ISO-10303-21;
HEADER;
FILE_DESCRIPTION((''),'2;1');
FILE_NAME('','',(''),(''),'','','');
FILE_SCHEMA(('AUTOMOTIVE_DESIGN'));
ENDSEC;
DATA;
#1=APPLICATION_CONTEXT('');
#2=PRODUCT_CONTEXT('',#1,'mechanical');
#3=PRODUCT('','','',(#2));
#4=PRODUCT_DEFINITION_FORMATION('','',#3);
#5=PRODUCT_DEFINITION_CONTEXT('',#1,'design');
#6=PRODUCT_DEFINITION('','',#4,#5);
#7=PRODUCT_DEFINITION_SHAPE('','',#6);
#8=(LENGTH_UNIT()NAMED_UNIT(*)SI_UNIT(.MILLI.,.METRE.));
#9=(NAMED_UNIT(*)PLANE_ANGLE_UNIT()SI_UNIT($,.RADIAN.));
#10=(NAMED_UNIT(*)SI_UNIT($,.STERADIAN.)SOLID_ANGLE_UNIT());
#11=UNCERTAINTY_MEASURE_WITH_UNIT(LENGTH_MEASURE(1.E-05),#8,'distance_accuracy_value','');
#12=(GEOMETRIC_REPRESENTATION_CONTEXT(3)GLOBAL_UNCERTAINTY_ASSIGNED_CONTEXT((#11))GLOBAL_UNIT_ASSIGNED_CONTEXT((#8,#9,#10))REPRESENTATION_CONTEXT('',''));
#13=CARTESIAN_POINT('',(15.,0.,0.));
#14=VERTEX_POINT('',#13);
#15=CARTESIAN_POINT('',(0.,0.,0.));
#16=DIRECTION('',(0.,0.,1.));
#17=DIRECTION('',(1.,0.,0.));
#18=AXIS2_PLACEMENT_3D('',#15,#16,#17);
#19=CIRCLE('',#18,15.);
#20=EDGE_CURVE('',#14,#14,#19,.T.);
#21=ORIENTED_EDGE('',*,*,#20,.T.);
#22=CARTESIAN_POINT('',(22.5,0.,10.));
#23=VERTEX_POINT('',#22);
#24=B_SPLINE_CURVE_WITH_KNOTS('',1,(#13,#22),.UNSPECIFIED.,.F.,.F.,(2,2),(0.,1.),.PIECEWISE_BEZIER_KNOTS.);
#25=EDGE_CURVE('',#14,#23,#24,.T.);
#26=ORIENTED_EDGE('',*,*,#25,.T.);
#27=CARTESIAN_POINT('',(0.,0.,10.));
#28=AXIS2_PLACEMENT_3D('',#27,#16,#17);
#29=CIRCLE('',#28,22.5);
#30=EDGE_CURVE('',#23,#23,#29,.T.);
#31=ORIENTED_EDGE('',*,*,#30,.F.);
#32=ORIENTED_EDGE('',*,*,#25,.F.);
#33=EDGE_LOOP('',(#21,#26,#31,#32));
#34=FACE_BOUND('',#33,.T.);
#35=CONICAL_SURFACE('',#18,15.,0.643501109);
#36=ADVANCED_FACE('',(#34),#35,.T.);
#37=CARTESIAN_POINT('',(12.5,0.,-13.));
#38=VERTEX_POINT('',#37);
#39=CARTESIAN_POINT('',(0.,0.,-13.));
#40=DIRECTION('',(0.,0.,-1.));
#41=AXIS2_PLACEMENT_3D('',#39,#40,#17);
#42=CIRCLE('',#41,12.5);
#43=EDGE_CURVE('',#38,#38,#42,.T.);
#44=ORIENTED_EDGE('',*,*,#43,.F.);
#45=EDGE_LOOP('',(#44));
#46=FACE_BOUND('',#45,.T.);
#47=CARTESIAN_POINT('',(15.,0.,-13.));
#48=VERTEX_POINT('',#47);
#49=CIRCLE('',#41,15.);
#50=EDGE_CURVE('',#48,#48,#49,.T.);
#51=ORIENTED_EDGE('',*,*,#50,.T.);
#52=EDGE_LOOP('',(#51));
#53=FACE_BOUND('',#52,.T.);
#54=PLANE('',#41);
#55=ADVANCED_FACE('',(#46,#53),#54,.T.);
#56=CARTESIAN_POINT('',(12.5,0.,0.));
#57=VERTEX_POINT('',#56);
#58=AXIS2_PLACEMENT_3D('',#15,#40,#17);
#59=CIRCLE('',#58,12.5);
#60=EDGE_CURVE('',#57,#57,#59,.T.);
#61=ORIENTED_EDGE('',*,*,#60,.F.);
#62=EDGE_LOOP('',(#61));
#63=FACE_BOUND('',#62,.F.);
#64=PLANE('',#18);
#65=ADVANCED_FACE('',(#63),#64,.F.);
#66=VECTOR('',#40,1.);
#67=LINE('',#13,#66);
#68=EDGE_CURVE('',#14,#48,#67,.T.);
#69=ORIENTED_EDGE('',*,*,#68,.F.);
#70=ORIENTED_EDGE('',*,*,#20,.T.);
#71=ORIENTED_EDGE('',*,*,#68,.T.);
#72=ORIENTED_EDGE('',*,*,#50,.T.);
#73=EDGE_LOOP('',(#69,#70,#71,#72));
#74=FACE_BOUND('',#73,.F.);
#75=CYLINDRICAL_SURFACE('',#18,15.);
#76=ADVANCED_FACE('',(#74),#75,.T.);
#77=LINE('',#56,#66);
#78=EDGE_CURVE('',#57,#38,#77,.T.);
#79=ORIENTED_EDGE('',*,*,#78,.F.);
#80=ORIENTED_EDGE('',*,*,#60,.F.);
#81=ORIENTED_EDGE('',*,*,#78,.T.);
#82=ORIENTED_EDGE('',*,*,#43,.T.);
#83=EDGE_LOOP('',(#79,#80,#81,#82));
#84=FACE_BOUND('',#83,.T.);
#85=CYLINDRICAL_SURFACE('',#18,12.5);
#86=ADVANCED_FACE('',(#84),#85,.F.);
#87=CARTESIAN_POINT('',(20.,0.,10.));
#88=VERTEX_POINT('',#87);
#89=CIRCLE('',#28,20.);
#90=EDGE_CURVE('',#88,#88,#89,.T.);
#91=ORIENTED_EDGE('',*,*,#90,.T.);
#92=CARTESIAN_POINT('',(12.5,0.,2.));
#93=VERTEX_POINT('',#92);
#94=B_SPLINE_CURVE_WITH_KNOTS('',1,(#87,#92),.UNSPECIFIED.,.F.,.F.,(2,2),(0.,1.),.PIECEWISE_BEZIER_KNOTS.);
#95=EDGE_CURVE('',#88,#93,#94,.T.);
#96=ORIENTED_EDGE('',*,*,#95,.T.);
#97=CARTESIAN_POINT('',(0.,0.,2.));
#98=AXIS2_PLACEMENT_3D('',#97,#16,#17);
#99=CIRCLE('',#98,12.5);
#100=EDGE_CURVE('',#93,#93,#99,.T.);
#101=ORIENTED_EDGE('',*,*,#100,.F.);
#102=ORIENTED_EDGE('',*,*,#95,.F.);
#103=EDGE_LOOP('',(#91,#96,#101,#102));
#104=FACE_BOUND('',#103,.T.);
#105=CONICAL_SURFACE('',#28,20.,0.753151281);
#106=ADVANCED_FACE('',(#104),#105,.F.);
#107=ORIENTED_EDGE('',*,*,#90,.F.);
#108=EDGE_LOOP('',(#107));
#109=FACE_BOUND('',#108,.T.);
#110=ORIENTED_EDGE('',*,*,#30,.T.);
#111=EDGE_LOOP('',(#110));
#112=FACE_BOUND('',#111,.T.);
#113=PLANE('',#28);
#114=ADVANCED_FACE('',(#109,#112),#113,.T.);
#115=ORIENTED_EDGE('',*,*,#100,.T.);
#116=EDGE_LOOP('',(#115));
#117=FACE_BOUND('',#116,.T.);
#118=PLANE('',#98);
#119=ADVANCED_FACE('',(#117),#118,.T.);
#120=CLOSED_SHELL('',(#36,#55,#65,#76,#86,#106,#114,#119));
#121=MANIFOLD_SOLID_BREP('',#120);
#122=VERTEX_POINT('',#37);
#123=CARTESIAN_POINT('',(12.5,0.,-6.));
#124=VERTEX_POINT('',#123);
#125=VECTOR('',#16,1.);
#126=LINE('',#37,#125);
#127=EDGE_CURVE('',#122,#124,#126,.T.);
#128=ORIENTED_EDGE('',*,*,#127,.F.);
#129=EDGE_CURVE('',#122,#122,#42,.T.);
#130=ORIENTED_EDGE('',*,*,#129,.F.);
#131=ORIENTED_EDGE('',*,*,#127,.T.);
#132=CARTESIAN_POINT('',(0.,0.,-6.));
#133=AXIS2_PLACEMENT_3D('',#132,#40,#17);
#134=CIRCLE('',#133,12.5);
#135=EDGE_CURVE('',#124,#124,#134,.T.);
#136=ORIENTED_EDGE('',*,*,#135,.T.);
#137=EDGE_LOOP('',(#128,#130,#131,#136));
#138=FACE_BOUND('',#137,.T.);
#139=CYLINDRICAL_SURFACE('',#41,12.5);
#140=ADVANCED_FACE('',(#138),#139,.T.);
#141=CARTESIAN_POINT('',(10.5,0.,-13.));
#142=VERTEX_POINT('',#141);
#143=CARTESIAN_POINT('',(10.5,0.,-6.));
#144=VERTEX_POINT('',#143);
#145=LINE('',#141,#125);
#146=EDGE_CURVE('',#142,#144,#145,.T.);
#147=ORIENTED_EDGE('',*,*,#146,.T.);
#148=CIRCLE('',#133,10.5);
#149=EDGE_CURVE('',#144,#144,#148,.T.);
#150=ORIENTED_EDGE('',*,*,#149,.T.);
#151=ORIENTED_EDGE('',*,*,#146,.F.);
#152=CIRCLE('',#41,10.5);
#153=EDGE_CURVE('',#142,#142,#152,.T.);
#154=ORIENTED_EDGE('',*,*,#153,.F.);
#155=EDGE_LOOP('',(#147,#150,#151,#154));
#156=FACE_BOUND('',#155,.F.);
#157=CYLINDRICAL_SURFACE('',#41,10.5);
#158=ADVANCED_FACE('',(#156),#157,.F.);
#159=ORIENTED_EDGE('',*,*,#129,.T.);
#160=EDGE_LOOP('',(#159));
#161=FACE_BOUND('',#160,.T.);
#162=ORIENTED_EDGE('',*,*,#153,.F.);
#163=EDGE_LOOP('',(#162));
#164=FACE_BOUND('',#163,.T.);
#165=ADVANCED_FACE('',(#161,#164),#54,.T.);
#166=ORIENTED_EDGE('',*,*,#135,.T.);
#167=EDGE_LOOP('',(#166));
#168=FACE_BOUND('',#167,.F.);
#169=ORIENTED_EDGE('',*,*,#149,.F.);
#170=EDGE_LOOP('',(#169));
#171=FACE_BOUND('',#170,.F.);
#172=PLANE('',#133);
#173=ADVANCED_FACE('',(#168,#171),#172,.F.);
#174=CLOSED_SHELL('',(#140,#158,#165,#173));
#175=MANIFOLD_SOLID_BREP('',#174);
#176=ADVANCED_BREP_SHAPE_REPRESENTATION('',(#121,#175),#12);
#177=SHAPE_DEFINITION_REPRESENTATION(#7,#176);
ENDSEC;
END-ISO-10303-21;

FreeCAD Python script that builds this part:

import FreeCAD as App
import Part
import Sketcher
from FreeCAD import Vector
Q = App.Units.Quantity

doc = App.newDocument("Part")
body = doc.addObject("PartDesign::Body", "Body")

# Sketch on XY plane
sketch1 = body.newObject("Sketcher::SketchObject", "Sketch")
sketch1.AttachmentSupport = (doc.getObject("XY_Plane"), [""])
sketch1.MapMode = "FlatFace"
sketch1.addGeometry(Part.Circle(Vector(0, 0, 0), Vector(0, 0, 1), 15), False)
sketch1.addConstraint([
    Sketcher.Constraint("Coincident", 0, 3, -1, 1),
    Sketcher.Constraint("Diameter", 0, Q("30 mm")),
])

# Sketch on XY plane
sketch2 = body.newObject("Sketcher::SketchObject", "Sketch001")
sketch2.AttachmentSupport = (doc.getObject("XY_Plane"), [""])
sketch2.MapMode = "FlatFace"
sketch2.AttachmentOffset = App.Placement(Vector(0, 0, 10), App.Rotation())
sketch2.addGeometry(Part.Circle(Vector(0, 0, 0), Vector(0, 0, 1), 22), False)
sketch2.addConstraint([
    Sketcher.Constraint("Coincident", 0, 3, -1, 1),
    Sketcher.Constraint("Diameter", 0, Q("45 mm")),
])

additiveloft = body.newObject("PartDesign::AdditiveLoft", "AdditiveLoft")
additiveloft.Profile = sketch1
additiveloft.Sections = [sketch2]

# Sketch on XY plane
sketch3 = body.newObject("Sketcher::SketchObject", "Sketch002")
sketch3.AttachmentSupport = (doc.getObject("XY_Plane"), [""])
sketch3.MapMode = "FlatFace"
sketch3.AttachmentOffset = App.Placement(Vector(0, 0, 10), App.Rotation())
sketch3.addGeometry(Part.Circle(Vector(0, 0, 0), Vector(0, 0, 1), 20), False)
sketch3.addConstraint([
    Sketcher.Constraint("Coincident", 0, 3, -1, 1),
    Sketcher.Constraint("Diameter", 0, Q("40 mm")),
])

# Sketch on XY plane
sketch4 = body.newObject("Sketcher::SketchObject", "Sketch003")
sketch4.AttachmentSupport = (doc.getObject("XY_Plane"), [""])
sketch4.MapMode = "FlatFace"
sketch4.AttachmentOffset = App.Placement(Vector(0, 0, 2), App.Rotation())
sketch4.addGeometry(Part.Circle(Vector(0, 0, 0), Vector(0, 0, 1), 12), False)
sketch4.addConstraint([
    Sketcher.Constraint("Coincident", 0, 3, -1, 1),
    Sketcher.Constraint("Diameter", 0, Q("25 mm")),
])

subtractiveloft = body.newObject("PartDesign::SubtractiveLoft", "SubtractiveLoft")
subtractiveloft.Profile = sketch3
subtractiveloft.Sections = [sketch4]

# Sketch on XY plane
sketch5 = body.newObject("Sketcher::SketchObject", "Sketch004")
sketch5.AttachmentSupport = (doc.getObject("XY_Plane"), [""])
sketch5.MapMode = "FlatFace"
sketch5.addGeometry([
    Part.Circle(Vector(0, 0, 0), Vector(0, 0, 1), 15),
    Part.Circle(Vector(0, 0, 0), Vector(0, 0, 1), 12),
], False)
sketch5.addConstraint([
    Sketcher.Constraint("Coincident", 0, 3, -1, 1),
    Sketcher.Constraint("Coincident", 1, 3, -1, 1),
    Sketcher.Constraint("Diameter", 0, Q("30 mm")),
    Sketcher.Constraint("Diameter", 1, Q("25 mm")),
])
pad1 = body.newObject("PartDesign::Pad", "Pad")
pad1.Profile = sketch5
pad1.Length = 13
pad1.Reversed = True
body2 = doc.addObject("PartDesign::Body", "Body001")

# Sketch on XY plane
sketch6 = body2.newObject("Sketcher::SketchObject", "Sketch005")
sketch6.AttachmentSupport = (doc.getObject("XY_Plane001"), [""])
sketch6.MapMode = "FlatFace"
sketch6.AttachmentOffset = App.Placement(Vector(0, 0, -13), App.Rotation())
sketch6.addGeometry([
    Part.Circle(Vector(0, 0, 0), Vector(0, 0, 1), 12),
    Part.Circle(Vector(0, 0, 0), Vector(0, 0, 1), 10),
], False)
sketch6.addConstraint([
    Sketcher.Constraint("Coincident", 0, 3, -1, 1),
    Sketcher.Constraint("Coincident", 1, 3, -1, 1),
    Sketcher.Constraint("Diameter", 0, Q("25 mm")),
    Sketcher.Constraint("Diameter", 1, Q("21 mm")),
])
pad2 = body2.newObject("PartDesign::Pad", "Pad001")
pad2.Profile = sketch6
pad2.Length = 7

doc.recompute()
